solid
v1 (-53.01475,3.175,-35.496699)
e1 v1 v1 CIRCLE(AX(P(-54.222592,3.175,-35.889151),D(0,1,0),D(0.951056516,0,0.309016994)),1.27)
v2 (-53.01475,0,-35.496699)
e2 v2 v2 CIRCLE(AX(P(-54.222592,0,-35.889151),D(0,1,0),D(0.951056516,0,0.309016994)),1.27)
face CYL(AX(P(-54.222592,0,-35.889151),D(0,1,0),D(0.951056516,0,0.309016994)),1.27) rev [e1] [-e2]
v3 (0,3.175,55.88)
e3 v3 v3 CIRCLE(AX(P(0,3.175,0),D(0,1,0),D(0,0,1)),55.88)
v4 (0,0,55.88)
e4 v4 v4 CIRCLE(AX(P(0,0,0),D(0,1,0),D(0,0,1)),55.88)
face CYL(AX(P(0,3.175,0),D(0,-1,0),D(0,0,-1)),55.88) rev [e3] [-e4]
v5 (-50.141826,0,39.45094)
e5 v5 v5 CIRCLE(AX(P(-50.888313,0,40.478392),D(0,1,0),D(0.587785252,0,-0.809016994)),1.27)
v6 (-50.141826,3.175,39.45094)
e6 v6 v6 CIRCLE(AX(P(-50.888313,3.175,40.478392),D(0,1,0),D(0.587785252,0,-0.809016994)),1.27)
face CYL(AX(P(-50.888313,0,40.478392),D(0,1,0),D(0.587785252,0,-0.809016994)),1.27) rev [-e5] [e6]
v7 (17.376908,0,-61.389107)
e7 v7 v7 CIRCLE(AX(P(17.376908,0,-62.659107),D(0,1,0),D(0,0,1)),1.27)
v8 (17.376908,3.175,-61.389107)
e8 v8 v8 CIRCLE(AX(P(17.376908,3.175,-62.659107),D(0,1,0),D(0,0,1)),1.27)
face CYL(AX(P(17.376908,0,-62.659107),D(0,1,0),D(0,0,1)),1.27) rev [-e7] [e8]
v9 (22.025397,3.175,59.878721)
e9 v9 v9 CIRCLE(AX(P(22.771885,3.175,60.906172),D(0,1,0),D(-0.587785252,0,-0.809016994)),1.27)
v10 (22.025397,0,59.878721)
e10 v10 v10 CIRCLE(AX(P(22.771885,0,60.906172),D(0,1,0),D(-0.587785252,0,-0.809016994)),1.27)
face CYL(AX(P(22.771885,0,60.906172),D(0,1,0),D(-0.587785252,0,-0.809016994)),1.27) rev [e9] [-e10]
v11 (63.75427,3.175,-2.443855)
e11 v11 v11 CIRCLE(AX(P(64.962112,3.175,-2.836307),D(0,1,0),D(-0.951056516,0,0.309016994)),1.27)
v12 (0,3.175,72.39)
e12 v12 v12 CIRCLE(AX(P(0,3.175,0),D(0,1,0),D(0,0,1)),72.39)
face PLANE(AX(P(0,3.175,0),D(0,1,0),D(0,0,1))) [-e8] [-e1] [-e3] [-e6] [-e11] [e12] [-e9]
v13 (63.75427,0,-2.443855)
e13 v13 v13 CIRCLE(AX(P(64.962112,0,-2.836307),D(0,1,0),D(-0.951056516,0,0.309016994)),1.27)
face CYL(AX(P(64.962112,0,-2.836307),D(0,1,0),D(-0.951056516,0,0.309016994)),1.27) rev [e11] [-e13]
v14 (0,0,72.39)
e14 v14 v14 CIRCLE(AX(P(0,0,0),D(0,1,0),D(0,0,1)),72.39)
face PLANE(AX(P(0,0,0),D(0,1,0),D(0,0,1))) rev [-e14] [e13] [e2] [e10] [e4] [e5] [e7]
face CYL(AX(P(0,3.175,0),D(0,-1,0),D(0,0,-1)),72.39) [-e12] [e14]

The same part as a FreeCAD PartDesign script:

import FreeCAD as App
import Part
import Sketcher
Q = App.Units.Quantity

doc = App.newDocument("Part")
body = doc.addObject("PartDesign::Body", "Body")

# Sketch on XZ plane
sketch1 = doc.addObject("Sketcher::SketchObject", "Sketch")
body.addObject(sketch1)
sketch1.AttachmentSupport = (doc.XZ_Plane, [""])
sketch1.MapMode = "FlatFace"
sketch1.addGeometry(Part.Circle(App.Vector(0, 0, 0), App.Vector(0, 0, 1), 72.39), False)
sketch1.addGeometry(Part.Circle(App.Vector(0, 0, 0), App.Vector(0, 0, 1), 55.88), False)
sketch1.addConstraint(Sketcher.Constraint("Coincident", 0, 3, -1, 1))
sketch1.addConstraint(Sketcher.Constraint("Coincident", 1, 3, -1, 1))
sketch1.addConstraint(Sketcher.Constraint("Diameter", 0, Q("5.7 in")))
sketch1.addConstraint(Sketcher.Constraint("Diameter", 1, Q("4.4 in")))
pad1 = doc.addObject("PartDesign::Pad", "Pad")
body.addObject(pad1)
pad1.Profile = sketch1
pad1.Length = Q("0.125 in")
pad1.Reversed = True

# Sketch on XZ plane
sketch2 = doc.addObject("Sketcher::SketchObject", "Sketch001")
body.addObject(sketch2)
sketch2.AttachmentSupport = (doc.XZ_Plane, [""])
sketch2.MapMode = "FlatFace"
sketch2.AttachmentOffset = App.Placement(App.Vector(0, 0, -0.125 * 25.4), App.Rotation())
sketch2.addGeometry(Part.Circle(App.Vector(17.376908, -62.659107, 0), App.Vector(0, 0, 1), 1.27), False)
sketch2.addConstraint(Sketcher.Constraint("Diameter", 0, Q("0.1 in")))
sketch2.addConstraint(Sketcher.Constraint("DistanceX", -1, 1, 0, 3, 17.376908))
sketch2.addConstraint(Sketcher.Constraint("DistanceY", 0, 3, -1, 1, 62.659107))
pocket1 = doc.addObject("PartDesign::Pocket", "Pocket")
body.addObject(pocket1)
pocket1.Profile = sketch2
pocket1.Type = "ThroughAll"
pocket1.Reversed = True
doc.recompute()

polarpattern = doc.addObject("PartDesign::PolarPattern", "PolarPattern")
body.addObject(polarpattern)
polarpattern.Originals = [pocket1]
polarpattern.Axis = (doc.Y_Axis, [""])
polarpattern.Angle = 360
polarpattern.Occurrences = 5
body.Tip = polarpattern

doc.recompute()
